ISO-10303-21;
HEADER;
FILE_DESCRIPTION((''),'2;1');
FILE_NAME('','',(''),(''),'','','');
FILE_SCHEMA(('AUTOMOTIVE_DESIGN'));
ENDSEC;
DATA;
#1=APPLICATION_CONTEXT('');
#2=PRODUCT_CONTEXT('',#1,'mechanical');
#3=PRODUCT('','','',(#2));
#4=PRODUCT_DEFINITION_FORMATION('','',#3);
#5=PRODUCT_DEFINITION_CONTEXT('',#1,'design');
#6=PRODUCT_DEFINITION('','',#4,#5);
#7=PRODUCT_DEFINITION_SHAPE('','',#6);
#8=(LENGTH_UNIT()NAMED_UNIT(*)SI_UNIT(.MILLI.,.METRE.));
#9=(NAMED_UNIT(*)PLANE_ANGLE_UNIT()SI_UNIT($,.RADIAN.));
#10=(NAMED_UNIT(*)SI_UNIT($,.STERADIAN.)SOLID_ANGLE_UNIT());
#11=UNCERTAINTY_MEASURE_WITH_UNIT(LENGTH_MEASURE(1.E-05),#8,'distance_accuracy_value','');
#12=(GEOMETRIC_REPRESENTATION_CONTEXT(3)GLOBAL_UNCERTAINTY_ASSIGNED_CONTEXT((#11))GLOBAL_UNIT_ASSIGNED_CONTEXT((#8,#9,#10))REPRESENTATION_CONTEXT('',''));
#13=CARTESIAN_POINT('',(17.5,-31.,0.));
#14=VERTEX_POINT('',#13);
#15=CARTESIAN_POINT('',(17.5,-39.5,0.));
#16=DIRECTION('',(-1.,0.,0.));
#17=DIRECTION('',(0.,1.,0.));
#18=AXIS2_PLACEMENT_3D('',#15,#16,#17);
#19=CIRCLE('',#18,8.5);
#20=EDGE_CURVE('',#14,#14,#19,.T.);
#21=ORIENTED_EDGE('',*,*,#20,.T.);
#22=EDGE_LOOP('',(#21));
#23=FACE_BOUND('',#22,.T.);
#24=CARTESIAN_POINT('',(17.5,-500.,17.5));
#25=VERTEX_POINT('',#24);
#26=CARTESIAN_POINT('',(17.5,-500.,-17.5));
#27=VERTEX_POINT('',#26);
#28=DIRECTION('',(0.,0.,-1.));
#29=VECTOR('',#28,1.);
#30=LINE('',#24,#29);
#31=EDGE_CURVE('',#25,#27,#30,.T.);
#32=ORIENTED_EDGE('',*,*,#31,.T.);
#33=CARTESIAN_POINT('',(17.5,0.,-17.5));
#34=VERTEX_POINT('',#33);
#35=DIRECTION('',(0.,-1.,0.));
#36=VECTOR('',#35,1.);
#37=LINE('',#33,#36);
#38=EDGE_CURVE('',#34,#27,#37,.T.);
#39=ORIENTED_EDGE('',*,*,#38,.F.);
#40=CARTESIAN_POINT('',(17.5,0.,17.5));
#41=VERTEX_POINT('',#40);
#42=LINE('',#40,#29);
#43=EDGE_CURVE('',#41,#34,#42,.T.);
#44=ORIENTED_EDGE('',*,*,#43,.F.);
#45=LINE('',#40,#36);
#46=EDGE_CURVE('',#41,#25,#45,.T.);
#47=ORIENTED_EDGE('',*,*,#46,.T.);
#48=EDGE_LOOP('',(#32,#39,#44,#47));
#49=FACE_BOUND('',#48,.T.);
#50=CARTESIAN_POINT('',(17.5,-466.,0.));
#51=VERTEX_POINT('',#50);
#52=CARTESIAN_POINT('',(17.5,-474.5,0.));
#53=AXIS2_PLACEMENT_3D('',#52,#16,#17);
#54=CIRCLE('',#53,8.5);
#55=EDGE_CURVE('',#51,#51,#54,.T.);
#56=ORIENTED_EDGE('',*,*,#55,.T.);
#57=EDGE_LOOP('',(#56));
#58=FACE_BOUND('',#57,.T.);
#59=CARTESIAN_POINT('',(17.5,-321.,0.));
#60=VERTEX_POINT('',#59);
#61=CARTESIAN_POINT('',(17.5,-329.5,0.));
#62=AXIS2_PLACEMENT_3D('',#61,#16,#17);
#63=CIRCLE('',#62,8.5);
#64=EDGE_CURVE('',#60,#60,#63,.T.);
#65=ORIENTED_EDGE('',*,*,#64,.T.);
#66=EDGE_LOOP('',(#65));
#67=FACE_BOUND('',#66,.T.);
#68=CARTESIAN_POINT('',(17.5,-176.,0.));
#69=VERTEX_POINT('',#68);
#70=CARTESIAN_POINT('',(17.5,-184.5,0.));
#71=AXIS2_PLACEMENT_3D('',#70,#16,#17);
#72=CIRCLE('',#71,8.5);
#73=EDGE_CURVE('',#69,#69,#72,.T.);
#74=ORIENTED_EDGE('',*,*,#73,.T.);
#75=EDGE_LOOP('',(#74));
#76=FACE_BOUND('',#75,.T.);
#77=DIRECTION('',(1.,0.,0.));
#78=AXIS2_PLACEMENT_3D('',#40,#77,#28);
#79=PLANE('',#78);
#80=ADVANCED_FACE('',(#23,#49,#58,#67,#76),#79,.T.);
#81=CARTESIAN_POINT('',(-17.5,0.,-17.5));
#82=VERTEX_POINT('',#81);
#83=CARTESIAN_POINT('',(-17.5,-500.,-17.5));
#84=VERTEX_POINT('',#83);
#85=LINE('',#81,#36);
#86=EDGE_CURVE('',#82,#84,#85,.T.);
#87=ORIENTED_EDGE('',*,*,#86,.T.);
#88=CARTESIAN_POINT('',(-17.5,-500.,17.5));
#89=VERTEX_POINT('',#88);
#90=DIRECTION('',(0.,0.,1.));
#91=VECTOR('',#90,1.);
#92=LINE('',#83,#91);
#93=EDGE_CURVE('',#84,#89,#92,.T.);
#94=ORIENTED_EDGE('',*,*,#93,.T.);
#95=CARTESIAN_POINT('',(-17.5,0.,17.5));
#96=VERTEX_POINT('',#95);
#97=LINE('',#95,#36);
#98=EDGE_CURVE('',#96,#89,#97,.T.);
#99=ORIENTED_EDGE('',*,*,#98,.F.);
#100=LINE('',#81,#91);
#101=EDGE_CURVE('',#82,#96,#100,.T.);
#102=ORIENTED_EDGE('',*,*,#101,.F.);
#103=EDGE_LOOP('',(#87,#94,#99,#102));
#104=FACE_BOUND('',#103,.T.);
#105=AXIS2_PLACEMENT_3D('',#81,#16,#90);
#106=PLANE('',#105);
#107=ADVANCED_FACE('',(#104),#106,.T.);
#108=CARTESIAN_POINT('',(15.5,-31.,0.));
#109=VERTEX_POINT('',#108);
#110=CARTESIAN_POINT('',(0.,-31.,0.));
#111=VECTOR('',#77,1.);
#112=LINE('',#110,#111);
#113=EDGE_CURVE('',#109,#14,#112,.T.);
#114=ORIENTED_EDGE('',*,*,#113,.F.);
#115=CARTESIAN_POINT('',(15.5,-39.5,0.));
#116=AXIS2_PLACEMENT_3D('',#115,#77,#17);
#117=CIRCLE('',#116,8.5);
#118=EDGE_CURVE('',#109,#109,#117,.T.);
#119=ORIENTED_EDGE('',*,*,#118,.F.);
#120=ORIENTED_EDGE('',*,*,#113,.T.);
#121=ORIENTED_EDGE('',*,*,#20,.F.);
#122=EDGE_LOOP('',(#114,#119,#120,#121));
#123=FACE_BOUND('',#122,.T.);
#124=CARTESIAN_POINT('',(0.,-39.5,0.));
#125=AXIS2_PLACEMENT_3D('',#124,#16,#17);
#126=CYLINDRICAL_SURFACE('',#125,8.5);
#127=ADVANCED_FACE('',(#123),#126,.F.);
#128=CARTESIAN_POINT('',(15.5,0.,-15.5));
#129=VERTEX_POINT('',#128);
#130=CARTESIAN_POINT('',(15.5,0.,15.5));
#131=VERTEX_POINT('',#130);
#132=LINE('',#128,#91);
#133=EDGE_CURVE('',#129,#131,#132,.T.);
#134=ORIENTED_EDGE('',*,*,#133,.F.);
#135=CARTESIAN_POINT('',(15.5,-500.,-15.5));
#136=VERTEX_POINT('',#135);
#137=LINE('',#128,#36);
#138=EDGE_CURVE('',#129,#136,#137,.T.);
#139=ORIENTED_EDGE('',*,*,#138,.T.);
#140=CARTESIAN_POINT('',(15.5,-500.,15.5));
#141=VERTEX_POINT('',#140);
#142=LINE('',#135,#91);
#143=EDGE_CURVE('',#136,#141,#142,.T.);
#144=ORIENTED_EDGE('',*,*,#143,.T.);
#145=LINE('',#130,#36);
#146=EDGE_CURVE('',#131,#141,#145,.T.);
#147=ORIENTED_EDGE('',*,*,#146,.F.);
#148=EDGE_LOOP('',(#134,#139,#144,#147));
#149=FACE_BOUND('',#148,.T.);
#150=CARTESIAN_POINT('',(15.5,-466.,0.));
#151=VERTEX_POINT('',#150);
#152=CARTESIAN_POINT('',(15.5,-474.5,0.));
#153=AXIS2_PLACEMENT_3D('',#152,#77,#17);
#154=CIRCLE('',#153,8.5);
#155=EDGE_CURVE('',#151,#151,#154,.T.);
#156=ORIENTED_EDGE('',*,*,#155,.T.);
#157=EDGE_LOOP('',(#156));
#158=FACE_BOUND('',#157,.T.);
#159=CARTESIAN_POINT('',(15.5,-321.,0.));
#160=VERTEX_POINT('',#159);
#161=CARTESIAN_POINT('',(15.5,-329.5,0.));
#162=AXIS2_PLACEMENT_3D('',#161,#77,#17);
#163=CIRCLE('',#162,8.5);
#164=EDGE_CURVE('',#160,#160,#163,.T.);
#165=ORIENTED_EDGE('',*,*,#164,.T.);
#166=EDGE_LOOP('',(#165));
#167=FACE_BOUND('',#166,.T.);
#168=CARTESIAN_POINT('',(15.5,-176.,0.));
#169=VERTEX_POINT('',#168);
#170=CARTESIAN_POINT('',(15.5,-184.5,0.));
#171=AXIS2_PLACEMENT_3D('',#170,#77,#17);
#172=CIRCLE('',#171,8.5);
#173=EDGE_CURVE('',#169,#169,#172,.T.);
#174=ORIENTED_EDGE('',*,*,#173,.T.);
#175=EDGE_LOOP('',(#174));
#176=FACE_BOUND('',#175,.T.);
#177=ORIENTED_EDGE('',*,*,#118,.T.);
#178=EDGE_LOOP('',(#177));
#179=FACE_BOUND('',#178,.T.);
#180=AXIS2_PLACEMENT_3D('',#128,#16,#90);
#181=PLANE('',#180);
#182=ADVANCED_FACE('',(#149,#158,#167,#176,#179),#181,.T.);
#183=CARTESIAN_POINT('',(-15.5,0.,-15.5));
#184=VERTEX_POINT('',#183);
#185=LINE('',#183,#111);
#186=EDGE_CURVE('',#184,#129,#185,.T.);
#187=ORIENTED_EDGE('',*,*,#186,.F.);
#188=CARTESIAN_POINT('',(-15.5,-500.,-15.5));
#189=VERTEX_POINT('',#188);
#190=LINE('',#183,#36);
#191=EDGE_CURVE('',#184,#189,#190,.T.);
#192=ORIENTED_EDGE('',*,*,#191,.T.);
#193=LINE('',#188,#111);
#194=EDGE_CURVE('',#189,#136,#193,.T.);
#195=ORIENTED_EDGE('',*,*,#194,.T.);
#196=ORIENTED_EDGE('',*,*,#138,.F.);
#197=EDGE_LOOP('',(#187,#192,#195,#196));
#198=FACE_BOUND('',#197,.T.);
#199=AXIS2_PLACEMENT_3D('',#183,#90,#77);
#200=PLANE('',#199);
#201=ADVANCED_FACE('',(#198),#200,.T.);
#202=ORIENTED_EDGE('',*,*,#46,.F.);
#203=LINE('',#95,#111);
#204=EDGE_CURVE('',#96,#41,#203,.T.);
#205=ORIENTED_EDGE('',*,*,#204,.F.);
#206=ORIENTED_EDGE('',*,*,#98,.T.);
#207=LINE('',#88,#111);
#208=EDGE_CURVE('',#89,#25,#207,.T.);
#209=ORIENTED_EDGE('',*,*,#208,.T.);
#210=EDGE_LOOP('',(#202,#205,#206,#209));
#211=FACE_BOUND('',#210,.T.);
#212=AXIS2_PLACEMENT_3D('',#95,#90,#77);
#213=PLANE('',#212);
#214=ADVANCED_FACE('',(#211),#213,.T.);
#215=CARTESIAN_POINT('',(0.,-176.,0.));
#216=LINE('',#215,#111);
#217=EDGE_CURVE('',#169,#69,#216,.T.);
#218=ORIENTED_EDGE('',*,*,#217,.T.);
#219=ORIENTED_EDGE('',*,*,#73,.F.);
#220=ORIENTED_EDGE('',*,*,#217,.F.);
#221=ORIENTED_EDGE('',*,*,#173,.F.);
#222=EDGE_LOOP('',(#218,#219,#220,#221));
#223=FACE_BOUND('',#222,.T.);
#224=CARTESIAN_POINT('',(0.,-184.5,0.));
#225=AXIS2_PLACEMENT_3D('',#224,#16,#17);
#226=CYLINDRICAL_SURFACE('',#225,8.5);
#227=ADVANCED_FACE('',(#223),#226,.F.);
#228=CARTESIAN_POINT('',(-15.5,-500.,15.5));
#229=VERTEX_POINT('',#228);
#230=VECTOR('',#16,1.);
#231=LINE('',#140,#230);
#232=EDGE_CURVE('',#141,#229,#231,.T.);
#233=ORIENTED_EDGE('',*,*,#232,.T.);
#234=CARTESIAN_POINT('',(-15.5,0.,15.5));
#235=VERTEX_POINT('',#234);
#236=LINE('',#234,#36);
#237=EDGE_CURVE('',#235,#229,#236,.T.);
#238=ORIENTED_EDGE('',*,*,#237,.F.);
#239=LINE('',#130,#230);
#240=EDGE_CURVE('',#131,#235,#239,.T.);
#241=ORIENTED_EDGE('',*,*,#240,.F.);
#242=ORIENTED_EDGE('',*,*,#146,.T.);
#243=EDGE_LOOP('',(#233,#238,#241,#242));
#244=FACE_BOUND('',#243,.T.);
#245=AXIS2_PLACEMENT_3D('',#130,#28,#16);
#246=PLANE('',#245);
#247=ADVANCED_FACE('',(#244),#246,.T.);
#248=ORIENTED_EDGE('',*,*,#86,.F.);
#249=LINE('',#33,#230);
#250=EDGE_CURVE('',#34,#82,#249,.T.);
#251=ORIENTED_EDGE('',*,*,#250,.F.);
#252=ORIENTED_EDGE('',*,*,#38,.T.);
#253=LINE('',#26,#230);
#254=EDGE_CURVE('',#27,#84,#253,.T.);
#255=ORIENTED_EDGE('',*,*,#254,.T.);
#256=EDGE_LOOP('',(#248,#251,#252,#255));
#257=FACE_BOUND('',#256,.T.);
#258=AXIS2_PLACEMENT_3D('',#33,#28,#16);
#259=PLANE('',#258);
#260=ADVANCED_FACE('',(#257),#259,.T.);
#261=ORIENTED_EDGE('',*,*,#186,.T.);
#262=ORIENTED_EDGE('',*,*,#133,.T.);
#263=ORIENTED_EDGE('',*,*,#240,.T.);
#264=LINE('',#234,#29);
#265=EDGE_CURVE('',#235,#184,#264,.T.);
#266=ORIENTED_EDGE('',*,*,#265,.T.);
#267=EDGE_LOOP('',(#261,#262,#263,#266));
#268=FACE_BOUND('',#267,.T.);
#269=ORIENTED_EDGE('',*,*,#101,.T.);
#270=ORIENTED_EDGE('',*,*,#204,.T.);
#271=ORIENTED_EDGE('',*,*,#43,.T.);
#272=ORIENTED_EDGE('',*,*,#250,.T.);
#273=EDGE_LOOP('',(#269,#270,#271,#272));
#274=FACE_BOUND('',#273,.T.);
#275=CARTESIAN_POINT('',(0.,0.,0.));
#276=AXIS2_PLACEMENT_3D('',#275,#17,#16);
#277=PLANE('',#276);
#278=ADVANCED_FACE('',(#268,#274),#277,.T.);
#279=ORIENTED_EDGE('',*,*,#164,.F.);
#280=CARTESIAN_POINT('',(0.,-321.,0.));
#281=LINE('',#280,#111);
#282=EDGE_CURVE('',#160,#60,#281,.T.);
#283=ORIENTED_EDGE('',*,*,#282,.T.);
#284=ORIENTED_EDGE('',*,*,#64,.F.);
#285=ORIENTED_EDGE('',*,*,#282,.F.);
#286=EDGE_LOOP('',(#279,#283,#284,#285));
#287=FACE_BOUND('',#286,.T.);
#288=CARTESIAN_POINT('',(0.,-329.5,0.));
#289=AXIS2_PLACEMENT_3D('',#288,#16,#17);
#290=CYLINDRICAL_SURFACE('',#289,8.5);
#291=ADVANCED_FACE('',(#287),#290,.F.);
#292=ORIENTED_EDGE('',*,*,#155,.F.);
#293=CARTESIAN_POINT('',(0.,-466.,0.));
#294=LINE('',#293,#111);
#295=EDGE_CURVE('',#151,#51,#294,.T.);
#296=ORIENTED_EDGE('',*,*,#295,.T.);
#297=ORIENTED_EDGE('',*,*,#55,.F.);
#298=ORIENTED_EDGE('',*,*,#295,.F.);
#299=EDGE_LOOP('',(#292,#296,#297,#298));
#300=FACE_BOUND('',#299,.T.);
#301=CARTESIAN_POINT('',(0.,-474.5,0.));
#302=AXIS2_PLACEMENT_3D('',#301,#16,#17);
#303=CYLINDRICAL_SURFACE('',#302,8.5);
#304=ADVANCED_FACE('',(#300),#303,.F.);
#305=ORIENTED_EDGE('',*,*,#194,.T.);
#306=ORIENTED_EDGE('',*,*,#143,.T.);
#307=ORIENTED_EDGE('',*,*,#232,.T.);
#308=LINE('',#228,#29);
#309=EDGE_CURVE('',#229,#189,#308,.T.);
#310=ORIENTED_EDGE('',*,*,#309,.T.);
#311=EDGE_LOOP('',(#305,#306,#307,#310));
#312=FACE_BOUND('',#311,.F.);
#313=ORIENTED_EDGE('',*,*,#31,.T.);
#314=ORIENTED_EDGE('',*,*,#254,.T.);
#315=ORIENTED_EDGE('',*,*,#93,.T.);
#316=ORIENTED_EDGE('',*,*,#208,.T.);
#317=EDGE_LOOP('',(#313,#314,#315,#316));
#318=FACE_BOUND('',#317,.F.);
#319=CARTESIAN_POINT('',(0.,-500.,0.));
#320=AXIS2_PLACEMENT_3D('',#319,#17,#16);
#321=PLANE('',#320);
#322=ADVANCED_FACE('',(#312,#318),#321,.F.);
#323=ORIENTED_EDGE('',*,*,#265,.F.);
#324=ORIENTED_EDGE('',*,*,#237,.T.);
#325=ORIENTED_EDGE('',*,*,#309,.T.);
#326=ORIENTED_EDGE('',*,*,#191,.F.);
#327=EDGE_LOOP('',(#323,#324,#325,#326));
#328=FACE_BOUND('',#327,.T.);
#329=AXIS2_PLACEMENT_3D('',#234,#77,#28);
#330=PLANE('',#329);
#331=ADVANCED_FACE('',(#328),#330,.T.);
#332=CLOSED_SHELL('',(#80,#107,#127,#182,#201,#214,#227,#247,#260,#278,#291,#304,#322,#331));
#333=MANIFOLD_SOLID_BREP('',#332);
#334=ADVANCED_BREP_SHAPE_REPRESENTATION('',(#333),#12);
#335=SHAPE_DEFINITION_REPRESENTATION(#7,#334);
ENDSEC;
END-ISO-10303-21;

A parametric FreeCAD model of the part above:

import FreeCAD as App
import Part
import Sketcher

V = App.Vector
Q = App.Units.Quantity


def add_polygon(sketch, points):
    """Adds a closed chain of lines whose ends are joined by coincident constraints."""
    first, n = sketch.GeometryCount, len(points)
    for a, b in zip(points, points[1:] + points[:1]):
        sketch.addGeometry(Part.LineSegment(App.Vector(*a, 0), App.Vector(*b, 0)), False)
    for i in range(n):
        sketch.addConstraint(Sketcher.Constraint("Coincident", first + i, 2, first + (i + 1) % n, 1))

doc = App.newDocument("Part")
body = doc.addObject("PartDesign::Body", "Body")

sketch1 = body.newObject("Sketcher::SketchObject", "Sketch")
sketch1.AttachmentSupport = (doc.getObject("XZ_Plane"), [""])
sketch1.MapMode = "FlatFace"
add_polygon(sketch1, [(-18, -18), (-18, 18), (18, 18), (18, -18)])
add_polygon(sketch1, [(16, -16), (16, 16), (-16, 16), (-16, -16)])
sketch1.addConstraint([
    Sketcher.Constraint("Vertical", 0),
    Sketcher.Constraint("Horizontal", 1),
    Sketcher.Constraint("Vertical", 2),
    Sketcher.Constraint("Horizontal", 3),
    Sketcher.Constraint("Vertical", 4),
    Sketcher.Constraint("Horizontal", 5),
    Sketcher.Constraint("Vertical", 6),
    Sketcher.Constraint("Horizontal", 7),
    Sketcher.Constraint("Symmetric", 0, 2, 2, 2, -1, 1),
    Sketcher.Constraint("Symmetric", 4, 2, 6, 2, -1, 1),
    Sketcher.Constraint("Equal", 3, 0),
    Sketcher.Constraint("Equal", 7, 4),
    Sketcher.Constraint("DistanceX", 1, 1, 1, 2, Q("35 mm")),
    Sketcher.Constraint("DistanceX", 4, 2, 1, 2, Q("2 mm")),
])
pad1 = body.newObject("PartDesign::Pad", "Pad")
pad1.Profile = sketch1
pad1.Length = 500

sketch2 = body.newObject("Sketcher::SketchObject", "Sketch001")
sketch2.AttachmentSupport = (doc.getObject("YZ_Plane"), [""])
sketch2.MapMode = "FlatFace"
sketch2.addGeometry(Part.Circle(V(-474, 0, 0), V(0, 0, 1), 8), False)
sketch2.addConstraint([
    Sketcher.Constraint("PointOnObject", 0, 3, -1),
    Sketcher.Constraint("Diameter", 0, Q("17 mm")),
    Sketcher.Constraint("DistanceX", 0, 3, -1, 1, Q("474.5 mm")),
])
pocket1 = body.newObject("PartDesign::Pocket", "Pocket")
pocket1.Profile = sketch2
pocket1.Type = "ThroughAll"
pocket1.Reversed = True
doc.recompute()

linearpattern = body.newObject("PartDesign::LinearPattern", "LinearPattern")
linearpattern.Originals = [pocket1]
linearpattern.Direction = (doc.getObject("Y_Axis"), [""])
linearpattern.Mode = "offset"
linearpattern.Offset = 145
linearpattern.Occurrences = 4
body.Tip = linearpattern

doc.recompute()
